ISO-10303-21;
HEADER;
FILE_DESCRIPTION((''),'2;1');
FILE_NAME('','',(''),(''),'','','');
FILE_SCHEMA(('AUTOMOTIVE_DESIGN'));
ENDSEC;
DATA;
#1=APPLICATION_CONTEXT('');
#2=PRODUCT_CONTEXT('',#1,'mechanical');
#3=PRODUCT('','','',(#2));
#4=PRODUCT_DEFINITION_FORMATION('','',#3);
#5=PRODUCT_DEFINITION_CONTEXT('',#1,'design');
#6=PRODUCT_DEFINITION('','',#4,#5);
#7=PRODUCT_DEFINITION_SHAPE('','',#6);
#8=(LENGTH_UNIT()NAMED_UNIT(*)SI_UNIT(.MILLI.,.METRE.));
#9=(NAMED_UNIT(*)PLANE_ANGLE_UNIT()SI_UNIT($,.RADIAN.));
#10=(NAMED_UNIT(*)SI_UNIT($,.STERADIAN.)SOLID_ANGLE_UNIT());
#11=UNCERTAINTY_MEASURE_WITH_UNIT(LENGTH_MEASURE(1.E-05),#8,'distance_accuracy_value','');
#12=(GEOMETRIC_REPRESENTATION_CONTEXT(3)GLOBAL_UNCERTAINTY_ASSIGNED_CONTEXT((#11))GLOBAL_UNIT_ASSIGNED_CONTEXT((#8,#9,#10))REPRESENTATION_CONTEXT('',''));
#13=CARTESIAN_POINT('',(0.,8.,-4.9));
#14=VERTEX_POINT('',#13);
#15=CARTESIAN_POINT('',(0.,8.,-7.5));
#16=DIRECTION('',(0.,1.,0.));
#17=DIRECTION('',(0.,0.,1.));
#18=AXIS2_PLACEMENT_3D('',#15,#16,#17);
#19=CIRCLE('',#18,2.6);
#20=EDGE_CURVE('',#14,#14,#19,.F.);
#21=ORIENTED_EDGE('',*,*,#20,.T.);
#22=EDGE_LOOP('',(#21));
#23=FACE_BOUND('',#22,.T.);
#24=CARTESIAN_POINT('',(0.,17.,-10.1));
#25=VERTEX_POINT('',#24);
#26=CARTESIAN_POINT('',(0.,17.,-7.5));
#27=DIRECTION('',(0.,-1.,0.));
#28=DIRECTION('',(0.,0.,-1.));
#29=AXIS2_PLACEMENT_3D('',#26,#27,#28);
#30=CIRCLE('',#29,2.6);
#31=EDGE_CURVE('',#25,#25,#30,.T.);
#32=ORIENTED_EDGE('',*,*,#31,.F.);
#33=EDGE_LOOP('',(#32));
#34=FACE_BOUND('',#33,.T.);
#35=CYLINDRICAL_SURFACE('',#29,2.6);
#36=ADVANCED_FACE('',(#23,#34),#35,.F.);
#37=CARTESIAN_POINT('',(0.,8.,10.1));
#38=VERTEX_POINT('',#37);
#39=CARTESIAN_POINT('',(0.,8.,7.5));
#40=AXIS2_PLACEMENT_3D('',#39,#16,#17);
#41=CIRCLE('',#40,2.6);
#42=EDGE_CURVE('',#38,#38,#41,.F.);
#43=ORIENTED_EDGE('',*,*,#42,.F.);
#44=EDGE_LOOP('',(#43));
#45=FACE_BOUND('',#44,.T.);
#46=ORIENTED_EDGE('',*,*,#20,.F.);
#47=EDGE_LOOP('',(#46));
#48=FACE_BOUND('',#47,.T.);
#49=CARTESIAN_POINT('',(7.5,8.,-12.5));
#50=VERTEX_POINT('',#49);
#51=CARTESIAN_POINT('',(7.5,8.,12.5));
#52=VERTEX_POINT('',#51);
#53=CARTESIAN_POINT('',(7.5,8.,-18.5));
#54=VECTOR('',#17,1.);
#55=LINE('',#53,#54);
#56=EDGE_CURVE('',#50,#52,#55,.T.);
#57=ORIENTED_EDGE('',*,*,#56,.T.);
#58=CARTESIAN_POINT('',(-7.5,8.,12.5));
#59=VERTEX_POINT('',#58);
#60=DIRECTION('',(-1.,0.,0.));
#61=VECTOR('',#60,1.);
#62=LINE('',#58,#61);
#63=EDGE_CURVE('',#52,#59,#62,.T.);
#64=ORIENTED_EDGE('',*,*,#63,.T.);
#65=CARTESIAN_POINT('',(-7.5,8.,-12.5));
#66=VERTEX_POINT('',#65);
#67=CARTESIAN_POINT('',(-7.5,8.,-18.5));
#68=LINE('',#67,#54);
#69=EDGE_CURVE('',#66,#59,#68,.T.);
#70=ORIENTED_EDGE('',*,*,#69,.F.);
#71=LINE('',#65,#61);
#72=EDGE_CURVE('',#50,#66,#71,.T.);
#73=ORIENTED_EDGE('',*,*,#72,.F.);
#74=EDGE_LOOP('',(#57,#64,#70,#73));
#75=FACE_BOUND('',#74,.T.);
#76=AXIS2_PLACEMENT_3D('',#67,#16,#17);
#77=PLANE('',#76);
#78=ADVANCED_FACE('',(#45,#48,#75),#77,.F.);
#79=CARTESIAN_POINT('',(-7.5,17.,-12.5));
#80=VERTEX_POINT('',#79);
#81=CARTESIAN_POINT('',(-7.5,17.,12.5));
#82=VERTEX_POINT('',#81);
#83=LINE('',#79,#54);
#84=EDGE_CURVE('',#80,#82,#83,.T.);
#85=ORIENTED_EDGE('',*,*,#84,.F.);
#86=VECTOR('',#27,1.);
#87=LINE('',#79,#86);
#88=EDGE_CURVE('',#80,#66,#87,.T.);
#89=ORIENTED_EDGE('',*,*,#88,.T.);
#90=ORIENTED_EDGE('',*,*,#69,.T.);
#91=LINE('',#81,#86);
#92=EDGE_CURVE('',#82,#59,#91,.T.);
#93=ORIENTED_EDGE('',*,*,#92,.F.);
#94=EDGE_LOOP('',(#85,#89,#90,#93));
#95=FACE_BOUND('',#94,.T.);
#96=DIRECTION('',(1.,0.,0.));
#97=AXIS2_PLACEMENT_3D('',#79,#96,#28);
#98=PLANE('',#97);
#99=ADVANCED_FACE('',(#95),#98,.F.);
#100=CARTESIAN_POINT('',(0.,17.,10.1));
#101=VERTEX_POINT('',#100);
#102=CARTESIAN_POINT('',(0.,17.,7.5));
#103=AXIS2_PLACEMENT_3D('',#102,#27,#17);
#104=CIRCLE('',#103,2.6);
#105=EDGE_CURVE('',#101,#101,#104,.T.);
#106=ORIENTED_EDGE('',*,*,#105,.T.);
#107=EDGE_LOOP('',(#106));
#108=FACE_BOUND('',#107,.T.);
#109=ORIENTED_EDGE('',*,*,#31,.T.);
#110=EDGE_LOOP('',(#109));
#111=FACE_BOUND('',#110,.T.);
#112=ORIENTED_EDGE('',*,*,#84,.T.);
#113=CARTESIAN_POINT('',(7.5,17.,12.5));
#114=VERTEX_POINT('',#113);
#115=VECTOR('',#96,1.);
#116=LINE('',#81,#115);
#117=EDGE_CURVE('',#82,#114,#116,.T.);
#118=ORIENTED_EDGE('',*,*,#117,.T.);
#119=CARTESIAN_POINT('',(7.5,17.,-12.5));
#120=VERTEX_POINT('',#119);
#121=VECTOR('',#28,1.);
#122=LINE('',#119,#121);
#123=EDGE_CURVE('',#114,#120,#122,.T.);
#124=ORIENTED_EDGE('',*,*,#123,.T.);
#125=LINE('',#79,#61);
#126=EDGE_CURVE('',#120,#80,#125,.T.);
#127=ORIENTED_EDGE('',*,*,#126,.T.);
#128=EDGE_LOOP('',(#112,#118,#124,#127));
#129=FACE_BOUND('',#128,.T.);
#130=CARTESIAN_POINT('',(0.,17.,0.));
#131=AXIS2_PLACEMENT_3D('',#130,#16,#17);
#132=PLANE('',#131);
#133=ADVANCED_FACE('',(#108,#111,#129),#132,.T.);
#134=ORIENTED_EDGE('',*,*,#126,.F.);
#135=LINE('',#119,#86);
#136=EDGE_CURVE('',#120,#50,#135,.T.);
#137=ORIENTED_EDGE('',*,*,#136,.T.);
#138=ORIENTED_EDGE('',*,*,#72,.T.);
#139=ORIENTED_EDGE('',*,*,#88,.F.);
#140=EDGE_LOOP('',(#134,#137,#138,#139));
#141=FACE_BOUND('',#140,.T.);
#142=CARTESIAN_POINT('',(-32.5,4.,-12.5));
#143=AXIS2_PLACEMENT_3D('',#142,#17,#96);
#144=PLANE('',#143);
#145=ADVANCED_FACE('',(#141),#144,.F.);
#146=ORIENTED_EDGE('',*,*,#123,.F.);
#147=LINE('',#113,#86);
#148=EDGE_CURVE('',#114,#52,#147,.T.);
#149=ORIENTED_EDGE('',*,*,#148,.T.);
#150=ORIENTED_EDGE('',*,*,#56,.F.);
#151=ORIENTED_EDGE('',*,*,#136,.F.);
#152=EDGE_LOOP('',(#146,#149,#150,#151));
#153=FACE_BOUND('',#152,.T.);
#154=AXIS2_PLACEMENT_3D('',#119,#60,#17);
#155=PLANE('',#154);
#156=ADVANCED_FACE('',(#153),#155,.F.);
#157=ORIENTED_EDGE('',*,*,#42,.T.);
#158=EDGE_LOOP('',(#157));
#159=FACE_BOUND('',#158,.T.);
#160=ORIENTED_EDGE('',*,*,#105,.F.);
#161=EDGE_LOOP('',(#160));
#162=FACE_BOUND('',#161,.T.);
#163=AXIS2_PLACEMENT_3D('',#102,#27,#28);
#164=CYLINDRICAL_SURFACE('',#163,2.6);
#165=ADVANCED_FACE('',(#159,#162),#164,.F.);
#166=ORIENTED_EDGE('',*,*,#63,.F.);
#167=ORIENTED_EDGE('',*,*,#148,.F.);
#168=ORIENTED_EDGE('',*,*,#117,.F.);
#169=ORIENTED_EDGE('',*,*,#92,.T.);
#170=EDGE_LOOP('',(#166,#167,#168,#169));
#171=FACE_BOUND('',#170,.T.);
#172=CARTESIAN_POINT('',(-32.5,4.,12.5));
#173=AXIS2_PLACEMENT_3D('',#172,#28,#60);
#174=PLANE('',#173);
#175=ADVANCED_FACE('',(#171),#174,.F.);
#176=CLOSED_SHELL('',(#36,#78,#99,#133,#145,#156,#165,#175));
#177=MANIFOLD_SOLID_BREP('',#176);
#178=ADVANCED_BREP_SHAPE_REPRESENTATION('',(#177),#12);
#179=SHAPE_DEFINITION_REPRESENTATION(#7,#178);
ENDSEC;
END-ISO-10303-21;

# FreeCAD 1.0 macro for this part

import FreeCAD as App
import Part
import Sketcher
Q = App.Units.Quantity


def edges_at(feature, points):
    """Names of the edges that pass closest to the given points."""
    edges = feature.Shape.Edges
    near = lambda p: min(range(len(edges)), key=lambda i: edges[i].distToShape(Part.Vertex(*p))[0])
    return sorted({f"Edge{near(p) + 1}" for p in points})

doc = App.newDocument("Part")
body = doc.addObject("PartDesign::Body", "Body")

# Sketch on XZ plane
sketch1 = body.newObject("Sketcher::SketchObject", "Sketch")
sketch1.AttachmentSupport = (doc.getObject("XZ_Plane"), [""])
sketch1.MapMode = "FlatFace"
sketch1.addGeometry([
    Part.LineSegment(App.Vector(-32, -12, 0), App.Vector(-32, 12, 0)),
    Part.LineSegment(App.Vector(-32, 12, 0), App.Vector(32, 12, 0)),
    Part.LineSegment(App.Vector(32, 12, 0), App.Vector(32, -12, 0)),
    Part.LineSegment(App.Vector(32, -12, 0), App.Vector(-32, -12, 0)),
], False)
sketch1.addConstraint([
    Sketcher.Constraint("Coincident", 0, 2, 1, 1),
    Sketcher.Constraint("Coincident", 1, 2, 2, 1),
    Sketcher.Constraint("Coincident", 2, 2, 3, 1),
    Sketcher.Constraint("Coincident", 3, 2, 0, 1),
    Sketcher.Constraint("Vertical", 0),
    Sketcher.Constraint("Horizontal", 1),
    Sketcher.Constraint("Vertical", 2),
    Sketcher.Constraint("Horizontal", 3),
    Sketcher.Constraint("Symmetric", 0, 2, 2, 2, -1, 1),
    Sketcher.Constraint("DistanceX", 1, 1, 1, 2, Q("65 mm")),
    Sketcher.Constraint("DistanceY", 0, 1, 0, 2, Q("25 mm")),
])
pad1 = body.newObject("PartDesign::Pad", "Pad")
pad1.Profile = sketch1
pad1.Length = 4
pad1.Reversed = True

# Sketch on XZ plane
sketch2 = body.newObject("Sketcher::SketchObject", "Sketch001")
sketch2.AttachmentSupport = (doc.getObject("XZ_Plane"), [""])
sketch2.MapMode = "FlatFace"
sketch2.AttachmentOffset = App.Placement(App.Vector(0, 0, -4), App.Rotation())
sketch2.addGeometry([
    Part.LineSegment(App.Vector(-8, -12, 0), App.Vector(-8, 12, 0)),
    Part.LineSegment(App.Vector(-8, 12, 0), App.Vector(8, 12, 0)),
    Part.LineSegment(App.Vector(8, 12, 0), App.Vector(8, -12, 0)),
    Part.LineSegment(App.Vector(8, -12, 0), App.Vector(-8, -12, 0)),
], False)
sketch2.addConstraint([
    Sketcher.Constraint("Coincident", 0, 2, 1, 1),
    Sketcher.Constraint("Coincident", 1, 2, 2, 1),
    Sketcher.Constraint("Coincident", 2, 2, 3, 1),
    Sketcher.Constraint("Coincident", 3, 2, 0, 1),
    Sketcher.Constraint("Vertical", 0),
    Sketcher.Constraint("Horizontal", 1),
    Sketcher.Constraint("Vertical", 2),
    Sketcher.Constraint("Horizontal", 3),
    Sketcher.Constraint("Symmetric", 0, 2, 2, 2, -1, 1),
    Sketcher.Constraint("DistanceX", 1, 1, 1, 2, Q("15 mm")),
    Sketcher.Constraint("DistanceY", 0, 1, 0, 2, Q("25 mm")),
])
pad2 = body.newObject("PartDesign::Pad", "Pad001")
pad2.Profile = sketch2
pad2.Length = 13
pad2.Reversed = True

# Sketch on XZ plane
sketch3 = body.newObject("Sketcher::SketchObject", "Sketch002")
sketch3.AttachmentSupport = (doc.getObject("XZ_Plane"), [""])
sketch3.MapMode = "FlatFace"
sketch3.addGeometry([
    Part.Circle(App.Vector(0, -7.5, 0), App.Vector(0, 0, 1), 2.6),
    Part.Circle(App.Vector(0, 7.5, 0), App.Vector(0, 0, 1), 2.6),
    Part.Circle(App.Vector(-22, 0, 0), App.Vector(0, 0, 1), 4),
    Part.Circle(App.Vector(22, 0, 0), App.Vector(0, 0, 1), 4),
], False)
sketch3.addConstraint([
    Sketcher.Constraint("Equal", 0, 1),
    Sketcher.Constraint("Equal", 2, 3),
    Sketcher.Constraint("Symmetric", 0, 3, 1, 3, -1, 1),
    Sketcher.Constraint("Symmetric", 2, 3, 3, 3, -1, 1),
    Sketcher.Constraint("PointOnObject", 0, 3, -2),
    Sketcher.Constraint("PointOnObject", 2, 3, -1),
    Sketcher.Constraint("Diameter", 2, Q("8 mm")),
    Sketcher.Constraint("Diameter", 0, Q("5.2 mm")),
    Sketcher.Constraint("DistanceX", 2, 3, -1, 1, Q("22 mm")),
    Sketcher.Constraint("DistanceY", 0, 3, 1, 3, Q("15 mm")),
])
pocket1 = body.newObject("PartDesign::Pocket", "Pocket")
pocket1.Profile = sketch3
pocket1.Type = "ThroughAll"

# Sketch on XY plane
sketch4 = body.newObject("Sketcher::SketchObject", "Sketch003")
sketch4.AttachmentSupport = (doc.getObject("XY_Plane"), [""])
sketch4.MapMode = "FlatFace"
sketch4.AttachmentOffset = App.Placement(App.Vector(0, 0, 12.5), App.Rotation())
sketch4.addGeometry([
    Part.LineSegment(App.Vector(-7.5, 8, 0), App.Vector(-7.5, 4, 0)),
    Part.LineSegment(App.Vector(-7.5, 4, 0), App.Vector(7.5, 4, 0)),
    Part.LineSegment(App.Vector(7.5, 4, 0), App.Vector(7.5, 8, 0)),
    Part.LineSegment(App.Vector(7.5, 8, 0), App.Vector(-7.5, 8, 0)),
], False)
sketch4.addConstraint([
    Sketcher.Constraint("Coincident", 0, 2, 1, 1),
    Sketcher.Constraint("Coincident", 1, 2, 2, 1),
    Sketcher.Constraint("Coincident", 2, 2, 3, 1),
    Sketcher.Constraint("Coincident", 3, 2, 0, 1),
    Sketcher.Constraint("Vertical", 0),
    Sketcher.Constraint("Horizontal", 1),
    Sketcher.Constraint("Vertical", 2),
    Sketcher.Constraint("Horizontal", 3),
    Sketcher.Constraint("DistanceX", 1, 1, 1, 2, Q("15 mm")),
    Sketcher.Constraint("DistanceY", 0, 2, 0, 1, Q("4 mm")),
    Sketcher.Constraint("DistanceY", -1, 1, 0, 2, Q("4 mm")),
    Sketcher.Constraint("DistanceX", 0, 2, -1, 1, Q("7.5 mm")),
])
pad3 = body.newObject("PartDesign::Pad", "Pad002")
pad3.Profile = sketch4
pad3.Length = 6

# Sketch on XZ plane
sketch5 = body.newObject("Sketcher::SketchObject", "Sketch004")
sketch5.AttachmentSupport = (doc.getObject("XZ_Plane"), [""])
sketch5.MapMode = "FlatFace"
sketch5.AttachmentOffset = App.Placement(App.Vector(0, 0, -4), App.Rotation())
sketch5.addGeometry([
    Part.Circle(App.Vector(-4.5, 15.5, 0), App.Vector(0, 0, 1), 1.2),
    Part.Circle(App.Vector(4.5, 15.5, 0), App.Vector(0, 0, 1), 1.2),
], False)
sketch5.addConstraint([
    Sketcher.Constraint("Equal", 0, 1),
    Sketcher.Constraint("Symmetric", 0, 3, 1, 3, -2),
    Sketcher.Constraint("Diameter", 0, Q("2.5 mm")),
    Sketcher.Constraint("DistanceX", 0, 3, 1, 3, Q("9 mm")),
    Sketcher.Constraint("DistanceY", -1, 1, 0, 3, Q("15.5 mm")),
])
pocket2 = body.newObject("PartDesign::Pocket", "Pocket001")
pocket2.Profile = sketch5
pocket2.Type = "ThroughAll"
doc.recompute()

mirrored = body.newObject("PartDesign::Mirrored", "Mirrored")
mirrored.Originals = [pad3, pocket2]
mirrored.MirrorPlane = (doc.getObject("XY_Plane"), [""])
body.Tip = mirrored
doc.recompute()

fillet = body.newObject("PartDesign::Fillet", "Fillet")
fillet.Base = (mirrored, edges_at(mirrored, [
    (-7.5, 6, 18.5),
    (7.5, 6, 18.5),
    (-7.5, 6, -18.5),
    (7.5, 6, -18.5),
]))
fillet.Radius = 3

# Sketch on XY plane
sketch6 = body.newObject("Sketcher::SketchObject", "Sketch005")
sketch6.AttachmentSupport = (doc.getObject("XY_Plane"), [""])
sketch6.MapMode = "FlatFace"
sketch6.AttachmentOffset = App.Placement(App.Vector(0, 0, -12.5), App.Rotation())
sketch6.addGeometry([
    Part.LineSegment(App.Vector(-32.5, 4, 0), App.Vector(32.5, 4, 0)),
    Part.LineSegment(App.Vector(32.5, 4, 0), App.Vector(32.5, 0, 0)),
    Part.LineSegment(App.Vector(32.5, 0, 0), App.Vector(-32.5, 0, 0)),
    Part.LineSegment(App.Vector(-32.5, 0, 0), App.Vector(-32.5, 4, 0)),
], False)
sketch6.addConstraint([
    Sketcher.Constraint("Coincident", 0, 2, 1, 1),
    Sketcher.Constraint("Coincident", 1, 2, 2, 1),
    Sketcher.Constraint("Coincident", 2, 2, 3, 1),
    Sketcher.Constraint("Coincident", 3, 2, 0, 1),
    Sketcher.Constraint("Horizontal", 0),
    Sketcher.Constraint("Vertical", 1),
    Sketcher.Constraint("Horizontal", 2),
    Sketcher.Constraint("Vertical", 3),
    Sketcher.Constraint("Symmetric", 1, 2, 2, 2, -1, 1),
    Sketcher.Constraint("DistanceX", 0, 1, 0, 2, Q("65 mm")),
    Sketcher.Constraint("DistanceY", 1, 2, 1, 1, Q("4 mm")),
])
pocket3 = body.newObject("PartDesign::Pocket", "Pocket002")
pocket3.Profile = sketch6
pocket3.Type = "ThroughAll"
pocket3.Reversed = True

# Sketch on XY plane
sketch7 = body.newObject("Sketcher::SketchObject", "Sketch006")
sketch7.AttachmentSupport = (doc.getObject("XY_Plane"), [""])
sketch7.MapMode = "FlatFace"
sketch7.AttachmentOffset = App.Placement(App.Vector(0, 0, 18.5), App.Rotation())
sketch7.addGeometry([
    Part.LineSegment(App.Vector(-7.5, 8, 0), App.Vector(-7.5, 4, 0)),
    Part.LineSegment(App.Vector(-7.5, 4, 0), App.Vector(7.5, 4, 0)),
    Part.LineSegment(App.Vector(7.5, 4, 0), App.Vector(7.5, 8, 0)),
    Part.LineSegment(App.Vector(7.5, 8, 0), App.Vector(-7.5, 8, 0)),
], False)
sketch7.addConstraint([
    Sketcher.Constraint("Coincident", 0, 2, 1, 1),
    Sketcher.Constraint("Coincident", 1, 2, 2, 1),
    Sketcher.Constraint("Coincident", 2, 2, 3, 1),
    Sketcher.Constraint("Coincident", 3, 2, 0, 1),
    Sketcher.Constraint("Vertical", 0),
    Sketcher.Constraint("Horizontal", 1),
    Sketcher.Constraint("Vertical", 2),
    Sketcher.Constraint("Horizontal", 3),
    Sketcher.Constraint("DistanceX", 1, 1, 1, 2, Q("15 mm")),
    Sketcher.Constraint("DistanceY", 0, 2, 0, 1, Q("4 mm")),
    Sketcher.Constraint("DistanceY", -1, 1, 0, 2, Q("4 mm")),
    Sketcher.Constraint("DistanceX", 0, 2, -1, 1, Q("7.5 mm")),
])
pocket4 = body.newObject("PartDesign::Pocket", "Pocket003")
pocket4.Profile = sketch7
pocket4.Type = "ThroughAll"

doc.recompute()
